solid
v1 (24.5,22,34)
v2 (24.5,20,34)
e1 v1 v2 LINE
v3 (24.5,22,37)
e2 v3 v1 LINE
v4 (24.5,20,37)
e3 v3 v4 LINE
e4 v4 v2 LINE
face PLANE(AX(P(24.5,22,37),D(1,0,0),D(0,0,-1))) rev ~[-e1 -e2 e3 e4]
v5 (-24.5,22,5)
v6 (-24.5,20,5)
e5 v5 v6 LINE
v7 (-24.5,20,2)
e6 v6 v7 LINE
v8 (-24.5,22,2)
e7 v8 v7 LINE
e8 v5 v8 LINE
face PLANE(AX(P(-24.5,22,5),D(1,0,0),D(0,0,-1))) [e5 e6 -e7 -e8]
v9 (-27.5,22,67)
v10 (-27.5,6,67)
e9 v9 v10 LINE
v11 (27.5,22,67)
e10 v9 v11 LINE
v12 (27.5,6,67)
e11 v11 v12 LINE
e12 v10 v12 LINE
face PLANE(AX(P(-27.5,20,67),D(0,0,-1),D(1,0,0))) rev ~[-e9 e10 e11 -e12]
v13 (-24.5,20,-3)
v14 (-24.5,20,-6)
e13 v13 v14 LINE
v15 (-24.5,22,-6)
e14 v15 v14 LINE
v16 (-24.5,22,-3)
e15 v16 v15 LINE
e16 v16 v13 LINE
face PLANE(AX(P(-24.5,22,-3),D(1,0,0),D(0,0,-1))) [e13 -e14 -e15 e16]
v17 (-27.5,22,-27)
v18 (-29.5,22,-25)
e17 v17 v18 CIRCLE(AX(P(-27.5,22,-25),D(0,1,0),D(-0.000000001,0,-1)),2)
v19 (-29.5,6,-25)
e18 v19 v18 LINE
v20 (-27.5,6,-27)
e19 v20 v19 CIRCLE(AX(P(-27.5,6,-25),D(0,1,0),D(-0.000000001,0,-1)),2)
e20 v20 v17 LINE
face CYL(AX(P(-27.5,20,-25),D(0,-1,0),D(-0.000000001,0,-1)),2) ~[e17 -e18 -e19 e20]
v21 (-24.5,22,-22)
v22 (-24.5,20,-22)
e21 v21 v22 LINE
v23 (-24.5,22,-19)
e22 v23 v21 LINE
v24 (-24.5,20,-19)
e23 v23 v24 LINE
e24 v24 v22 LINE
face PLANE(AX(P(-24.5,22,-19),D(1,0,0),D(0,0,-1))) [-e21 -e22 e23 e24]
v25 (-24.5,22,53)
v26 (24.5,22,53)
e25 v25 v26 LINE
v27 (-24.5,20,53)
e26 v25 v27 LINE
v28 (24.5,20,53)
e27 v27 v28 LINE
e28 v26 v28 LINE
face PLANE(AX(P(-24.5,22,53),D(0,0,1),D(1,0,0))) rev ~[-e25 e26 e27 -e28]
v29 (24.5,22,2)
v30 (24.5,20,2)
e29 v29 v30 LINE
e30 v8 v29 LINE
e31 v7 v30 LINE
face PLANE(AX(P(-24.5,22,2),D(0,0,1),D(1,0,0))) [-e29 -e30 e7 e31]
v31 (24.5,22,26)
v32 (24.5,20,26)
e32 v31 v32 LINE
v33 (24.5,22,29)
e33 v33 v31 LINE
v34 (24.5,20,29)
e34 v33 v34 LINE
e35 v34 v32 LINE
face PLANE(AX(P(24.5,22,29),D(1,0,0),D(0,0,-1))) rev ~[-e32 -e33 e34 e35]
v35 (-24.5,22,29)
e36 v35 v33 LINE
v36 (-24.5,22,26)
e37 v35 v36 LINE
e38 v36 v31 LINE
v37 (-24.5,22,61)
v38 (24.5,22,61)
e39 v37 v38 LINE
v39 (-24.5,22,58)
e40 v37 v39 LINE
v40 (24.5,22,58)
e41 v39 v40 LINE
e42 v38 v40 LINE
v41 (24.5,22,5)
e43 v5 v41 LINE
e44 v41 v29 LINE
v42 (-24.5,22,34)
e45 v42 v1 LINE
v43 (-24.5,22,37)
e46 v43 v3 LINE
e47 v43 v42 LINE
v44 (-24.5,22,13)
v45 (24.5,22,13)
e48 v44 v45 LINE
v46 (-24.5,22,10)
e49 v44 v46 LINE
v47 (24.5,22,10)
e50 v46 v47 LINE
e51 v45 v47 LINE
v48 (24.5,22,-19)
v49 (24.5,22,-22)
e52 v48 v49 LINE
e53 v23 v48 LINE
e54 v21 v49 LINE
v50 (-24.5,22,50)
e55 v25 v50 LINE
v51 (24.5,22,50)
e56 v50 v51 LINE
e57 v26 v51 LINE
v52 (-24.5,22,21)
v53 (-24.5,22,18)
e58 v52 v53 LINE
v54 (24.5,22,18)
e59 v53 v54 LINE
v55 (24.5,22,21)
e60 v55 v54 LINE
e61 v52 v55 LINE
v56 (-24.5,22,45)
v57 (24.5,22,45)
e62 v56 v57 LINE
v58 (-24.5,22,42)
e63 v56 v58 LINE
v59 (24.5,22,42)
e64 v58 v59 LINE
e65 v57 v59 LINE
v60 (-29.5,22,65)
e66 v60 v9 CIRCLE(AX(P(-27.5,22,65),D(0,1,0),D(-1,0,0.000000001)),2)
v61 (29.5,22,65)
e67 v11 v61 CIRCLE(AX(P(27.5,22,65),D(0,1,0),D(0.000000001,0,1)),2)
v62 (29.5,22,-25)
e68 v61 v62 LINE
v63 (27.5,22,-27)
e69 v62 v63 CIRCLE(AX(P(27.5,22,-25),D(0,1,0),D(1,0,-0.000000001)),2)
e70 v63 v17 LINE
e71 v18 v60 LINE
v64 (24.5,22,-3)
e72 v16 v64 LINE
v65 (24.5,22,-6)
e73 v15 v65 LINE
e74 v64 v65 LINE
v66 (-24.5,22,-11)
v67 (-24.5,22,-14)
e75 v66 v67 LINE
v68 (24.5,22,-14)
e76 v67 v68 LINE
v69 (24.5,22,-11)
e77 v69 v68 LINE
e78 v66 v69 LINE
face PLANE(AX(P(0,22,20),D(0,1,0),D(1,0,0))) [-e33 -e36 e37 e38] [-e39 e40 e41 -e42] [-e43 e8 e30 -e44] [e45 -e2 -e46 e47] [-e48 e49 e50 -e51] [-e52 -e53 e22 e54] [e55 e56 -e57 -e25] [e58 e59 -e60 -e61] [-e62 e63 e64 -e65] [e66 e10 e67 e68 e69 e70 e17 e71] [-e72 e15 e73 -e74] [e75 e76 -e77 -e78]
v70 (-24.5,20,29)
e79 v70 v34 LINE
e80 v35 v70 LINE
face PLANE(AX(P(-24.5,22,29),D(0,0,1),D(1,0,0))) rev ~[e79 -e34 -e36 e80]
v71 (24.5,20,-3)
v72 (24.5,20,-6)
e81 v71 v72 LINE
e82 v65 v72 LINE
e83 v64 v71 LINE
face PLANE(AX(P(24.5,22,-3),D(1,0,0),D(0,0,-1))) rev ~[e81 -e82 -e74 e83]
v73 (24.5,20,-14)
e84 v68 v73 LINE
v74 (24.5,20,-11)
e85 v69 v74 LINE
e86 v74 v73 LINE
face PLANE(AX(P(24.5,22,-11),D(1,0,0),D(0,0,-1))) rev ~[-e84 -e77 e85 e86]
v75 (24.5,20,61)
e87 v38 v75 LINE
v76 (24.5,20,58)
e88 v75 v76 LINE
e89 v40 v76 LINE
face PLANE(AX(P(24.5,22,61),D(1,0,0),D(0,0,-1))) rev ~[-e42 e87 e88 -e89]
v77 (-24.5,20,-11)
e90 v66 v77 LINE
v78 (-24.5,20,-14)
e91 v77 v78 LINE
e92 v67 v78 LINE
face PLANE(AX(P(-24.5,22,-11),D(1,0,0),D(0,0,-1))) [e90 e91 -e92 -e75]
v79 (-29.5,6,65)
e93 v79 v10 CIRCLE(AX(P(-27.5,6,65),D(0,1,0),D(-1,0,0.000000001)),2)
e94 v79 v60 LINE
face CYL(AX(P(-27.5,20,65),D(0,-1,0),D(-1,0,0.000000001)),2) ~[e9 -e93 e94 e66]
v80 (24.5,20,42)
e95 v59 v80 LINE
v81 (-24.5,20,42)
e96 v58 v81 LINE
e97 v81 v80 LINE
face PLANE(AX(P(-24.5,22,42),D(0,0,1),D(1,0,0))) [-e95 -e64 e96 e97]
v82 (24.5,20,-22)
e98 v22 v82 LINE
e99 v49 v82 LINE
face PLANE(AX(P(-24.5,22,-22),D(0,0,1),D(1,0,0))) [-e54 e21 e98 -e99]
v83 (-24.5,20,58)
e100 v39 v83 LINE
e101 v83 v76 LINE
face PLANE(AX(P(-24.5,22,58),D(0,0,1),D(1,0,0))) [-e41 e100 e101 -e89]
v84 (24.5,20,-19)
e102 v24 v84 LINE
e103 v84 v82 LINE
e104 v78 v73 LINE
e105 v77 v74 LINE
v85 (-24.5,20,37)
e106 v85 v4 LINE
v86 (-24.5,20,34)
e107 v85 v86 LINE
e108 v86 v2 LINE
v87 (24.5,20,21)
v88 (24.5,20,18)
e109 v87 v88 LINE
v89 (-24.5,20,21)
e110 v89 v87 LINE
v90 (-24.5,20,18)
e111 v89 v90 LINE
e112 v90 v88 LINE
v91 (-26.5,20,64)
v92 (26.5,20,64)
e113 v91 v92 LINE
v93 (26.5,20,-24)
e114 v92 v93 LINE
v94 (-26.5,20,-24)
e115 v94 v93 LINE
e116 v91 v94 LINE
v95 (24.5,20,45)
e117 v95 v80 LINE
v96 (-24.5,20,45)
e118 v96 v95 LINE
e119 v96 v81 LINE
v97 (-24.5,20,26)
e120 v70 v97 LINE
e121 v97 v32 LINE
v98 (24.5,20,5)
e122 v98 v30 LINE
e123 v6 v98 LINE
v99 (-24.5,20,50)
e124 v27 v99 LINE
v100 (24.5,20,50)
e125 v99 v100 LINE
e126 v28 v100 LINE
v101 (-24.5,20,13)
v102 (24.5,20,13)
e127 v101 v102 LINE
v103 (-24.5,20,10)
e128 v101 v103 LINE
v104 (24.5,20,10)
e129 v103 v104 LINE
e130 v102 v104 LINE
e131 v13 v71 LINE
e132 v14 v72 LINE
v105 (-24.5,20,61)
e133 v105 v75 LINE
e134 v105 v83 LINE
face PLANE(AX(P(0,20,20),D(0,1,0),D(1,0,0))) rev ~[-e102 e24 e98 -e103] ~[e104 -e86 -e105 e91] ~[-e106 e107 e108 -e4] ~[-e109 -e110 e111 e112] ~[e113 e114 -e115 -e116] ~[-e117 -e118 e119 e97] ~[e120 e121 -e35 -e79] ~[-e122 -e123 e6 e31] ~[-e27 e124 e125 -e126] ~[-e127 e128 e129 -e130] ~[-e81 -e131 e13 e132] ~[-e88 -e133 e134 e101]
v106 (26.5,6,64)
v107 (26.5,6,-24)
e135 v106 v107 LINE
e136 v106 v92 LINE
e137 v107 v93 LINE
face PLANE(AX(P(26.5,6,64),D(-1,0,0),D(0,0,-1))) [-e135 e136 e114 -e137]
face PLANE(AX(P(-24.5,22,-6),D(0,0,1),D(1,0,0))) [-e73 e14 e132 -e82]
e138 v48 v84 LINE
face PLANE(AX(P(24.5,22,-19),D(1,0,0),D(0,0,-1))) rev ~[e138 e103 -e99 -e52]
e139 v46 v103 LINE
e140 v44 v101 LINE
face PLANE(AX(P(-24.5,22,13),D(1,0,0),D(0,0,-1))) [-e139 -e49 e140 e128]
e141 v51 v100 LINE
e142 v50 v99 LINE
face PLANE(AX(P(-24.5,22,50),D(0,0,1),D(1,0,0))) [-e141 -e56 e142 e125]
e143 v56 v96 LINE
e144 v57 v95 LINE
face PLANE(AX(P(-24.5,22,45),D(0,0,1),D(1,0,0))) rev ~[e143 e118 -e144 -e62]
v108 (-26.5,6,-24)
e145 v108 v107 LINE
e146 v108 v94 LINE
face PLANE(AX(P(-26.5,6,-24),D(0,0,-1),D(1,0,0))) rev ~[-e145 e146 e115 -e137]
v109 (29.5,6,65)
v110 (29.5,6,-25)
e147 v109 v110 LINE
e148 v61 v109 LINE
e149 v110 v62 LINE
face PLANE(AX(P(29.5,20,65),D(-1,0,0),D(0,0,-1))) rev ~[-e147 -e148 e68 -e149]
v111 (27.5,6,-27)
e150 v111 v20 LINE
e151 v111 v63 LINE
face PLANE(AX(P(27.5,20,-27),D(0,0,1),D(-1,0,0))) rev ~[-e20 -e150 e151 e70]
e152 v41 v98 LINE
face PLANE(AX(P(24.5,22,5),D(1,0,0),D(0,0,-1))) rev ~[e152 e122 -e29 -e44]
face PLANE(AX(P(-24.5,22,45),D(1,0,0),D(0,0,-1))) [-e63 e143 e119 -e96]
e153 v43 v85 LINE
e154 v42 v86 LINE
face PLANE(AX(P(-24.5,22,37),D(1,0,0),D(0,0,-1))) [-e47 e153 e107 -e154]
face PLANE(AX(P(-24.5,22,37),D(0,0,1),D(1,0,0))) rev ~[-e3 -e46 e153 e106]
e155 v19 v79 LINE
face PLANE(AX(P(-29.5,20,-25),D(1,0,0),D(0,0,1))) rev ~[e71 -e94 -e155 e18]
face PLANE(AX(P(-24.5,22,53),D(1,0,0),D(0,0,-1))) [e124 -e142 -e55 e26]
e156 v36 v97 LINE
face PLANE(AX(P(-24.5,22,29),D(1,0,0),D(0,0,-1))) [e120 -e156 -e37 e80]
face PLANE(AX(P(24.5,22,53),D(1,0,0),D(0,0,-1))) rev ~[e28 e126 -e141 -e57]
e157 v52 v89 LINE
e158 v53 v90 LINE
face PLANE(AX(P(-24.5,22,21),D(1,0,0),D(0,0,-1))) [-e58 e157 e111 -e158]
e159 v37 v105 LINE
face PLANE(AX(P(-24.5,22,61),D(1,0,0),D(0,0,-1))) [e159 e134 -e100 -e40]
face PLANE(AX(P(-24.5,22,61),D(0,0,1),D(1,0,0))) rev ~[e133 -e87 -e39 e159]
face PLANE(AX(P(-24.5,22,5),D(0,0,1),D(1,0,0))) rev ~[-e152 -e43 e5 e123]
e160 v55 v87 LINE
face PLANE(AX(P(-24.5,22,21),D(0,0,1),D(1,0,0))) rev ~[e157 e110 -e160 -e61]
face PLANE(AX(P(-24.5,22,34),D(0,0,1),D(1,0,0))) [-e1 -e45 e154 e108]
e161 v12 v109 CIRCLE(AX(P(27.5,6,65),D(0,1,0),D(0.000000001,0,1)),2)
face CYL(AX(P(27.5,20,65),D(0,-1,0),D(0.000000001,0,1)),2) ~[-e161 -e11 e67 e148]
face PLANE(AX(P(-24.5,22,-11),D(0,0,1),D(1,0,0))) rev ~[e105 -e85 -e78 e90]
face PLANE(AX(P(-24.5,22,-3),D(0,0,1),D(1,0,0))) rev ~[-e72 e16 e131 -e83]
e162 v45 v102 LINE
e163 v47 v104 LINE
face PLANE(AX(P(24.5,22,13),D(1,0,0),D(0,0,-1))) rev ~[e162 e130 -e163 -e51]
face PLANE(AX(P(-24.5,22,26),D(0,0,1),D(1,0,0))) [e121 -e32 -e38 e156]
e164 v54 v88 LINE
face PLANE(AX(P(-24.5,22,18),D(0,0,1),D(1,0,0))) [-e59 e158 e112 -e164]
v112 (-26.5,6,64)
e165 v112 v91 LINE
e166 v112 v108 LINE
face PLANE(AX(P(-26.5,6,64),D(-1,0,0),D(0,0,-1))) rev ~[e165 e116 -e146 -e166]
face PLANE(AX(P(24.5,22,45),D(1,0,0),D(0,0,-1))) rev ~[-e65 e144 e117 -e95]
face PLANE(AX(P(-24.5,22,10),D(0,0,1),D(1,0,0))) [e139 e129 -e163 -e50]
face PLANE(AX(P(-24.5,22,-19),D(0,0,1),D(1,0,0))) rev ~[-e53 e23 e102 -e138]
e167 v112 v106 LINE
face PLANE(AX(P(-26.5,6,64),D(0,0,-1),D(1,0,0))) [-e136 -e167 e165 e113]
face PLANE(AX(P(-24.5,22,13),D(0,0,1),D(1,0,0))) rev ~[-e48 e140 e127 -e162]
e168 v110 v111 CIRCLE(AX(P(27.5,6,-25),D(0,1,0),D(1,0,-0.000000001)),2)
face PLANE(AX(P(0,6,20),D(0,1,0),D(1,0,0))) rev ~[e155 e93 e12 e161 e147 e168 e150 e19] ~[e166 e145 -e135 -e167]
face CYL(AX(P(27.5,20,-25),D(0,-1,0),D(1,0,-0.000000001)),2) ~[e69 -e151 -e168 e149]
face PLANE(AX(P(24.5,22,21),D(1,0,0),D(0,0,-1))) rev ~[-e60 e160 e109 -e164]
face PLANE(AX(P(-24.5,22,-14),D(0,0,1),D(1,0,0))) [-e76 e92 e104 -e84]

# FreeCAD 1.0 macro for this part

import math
import FreeCAD as App
import Part
import Sketcher
Q = App.Units.Quantity


def add_polygon(sketch, points):
    """Adds a closed chain of lines whose ends are joined by coincident constraints."""
    first, n = sketch.GeometryCount, len(points)
    for a, b in zip(points, points[1:] + points[:1]):
        sketch.addGeometry(Part.LineSegment(App.Vector(*a, 0), App.Vector(*b, 0)), False)
    for i in range(n):
        sketch.addConstraint(Sketcher.Constraint("Coincident", first + i, 2, first + (i + 1) % n, 1))

doc = App.newDocument("Part")
params = doc.addObject("Spreadsheet::Sheet", "Params")
for row, (alias, value) in enumerate([
    ("sketch1_radius", "2 mm"),
    ("sketch1_width", "55 mm"),
    ("sketch1_width2", "53 mm"),
    ("sketch1_height", "90 mm"),
    ("sketch1_height2", "88 mm"),
    ("pad1_length", "5 mm"),
    ("pad1_length2", "9 mm"),
    ("sketch2_radius", "2 mm"),
    ("sketch2_width", "55 mm"),
    ("sketch2_height", "90 mm"),
    ("pad2_length", "2 mm"),
    ("sketch3_width", "49 mm"),
    ("sketch3_height", "3 mm"),
    ("linearpattern_pitch", "8 mm"),
], start=1):
    params.set(f"A{row}", alias)
    params.set(f"B{row}", "=" + value)
    params.setAlias(f"B{row}", alias)

body = doc.addObject("PartDesign::Body", "Body")

# Sketch on XZ plane
sketch1 = body.newObject("Sketcher::SketchObject", "Sketch")
sketch1.AttachmentSupport = (doc.getObject("XZ_Plane"), [""])
sketch1.MapMode = "FlatFace"
sketch1.AttachmentOffset = App.Placement(App.Vector(0, 0, -15), App.Rotation())
sketch1.addGeometry(Part.LineSegment(App.Vector(29.5, 65, 0), App.Vector(29.5, -25, 0)), False)  # 0
sketch1.addGeometry(Part.ArcOfCircle(Part.Circle(App.Vector(27.5, -25, 0), App.Vector(0, 0, 1), 2), math.radians(-90), math.radians(0)), False)  # 1
sketch1.addGeometry(Part.LineSegment(App.Vector(27.5, -27, 0), App.Vector(-27.5, -27, 0)), False)  # 2
sketch1.addGeometry(Part.ArcOfCircle(Part.Circle(App.Vector(-27.5, -25, 0), App.Vector(0, 0, 1), 2), math.radians(-180), math.radians(-90)), False)  # 3
sketch1.addGeometry(Part.LineSegment(App.Vector(-29.5, -25, 0), App.Vector(-29.5, 65, 0)), False)  # 4
sketch1.addGeometry(Part.ArcOfCircle(Part.Circle(App.Vector(-27.5, 65, 0), App.Vector(0, 0, 1), 2), math.radians(90), math.radians(180)), False)  # 5
sketch1.addGeometry(Part.LineSegment(App.Vector(-27.5, 67, 0), App.Vector(27.5, 67, 0)), False)  # 6
sketch1.addGeometry(Part.ArcOfCircle(Part.Circle(App.Vector(27.5, 65, 0), App.Vector(0, 0, 1), 2), math.radians(0), math.radians(90)), False)  # 7
add_polygon(sketch1, [(26.5, 64), (-26.5, 64), (-26.5, -24), (26.5, -24)])  # lines 8-11
sketch1.addConstraint([
    Sketcher.Constraint("Tangent", 0, 2, 1, 2),
    Sketcher.Constraint("Tangent", 1, 1, 2, 1),
    Sketcher.Constraint("Tangent", 2, 2, 3, 2),
    Sketcher.Constraint("Tangent", 3, 1, 4, 1),
    Sketcher.Constraint("Tangent", 4, 2, 5, 2),
    Sketcher.Constraint("Tangent", 5, 1, 6, 1),
    Sketcher.Constraint("Tangent", 6, 2, 7, 2),
    Sketcher.Constraint("Tangent", 7, 1, 0, 1),
    Sketcher.Constraint("Vertical", 0),
    Sketcher.Constraint("Horizontal", 2),
    Sketcher.Constraint("Vertical", 4),
    Sketcher.Constraint("Horizontal", 6),
    Sketcher.Constraint("Horizontal", 8),
    Sketcher.Constraint("Vertical", 9),
    Sketcher.Constraint("Horizontal", 10),
    Sketcher.Constraint("Vertical", 11),
    Sketcher.Constraint("Equal", 1, 3),
    Sketcher.Constraint("Equal", 3, 5),
    Sketcher.Constraint("Equal", 5, 7),
    Sketcher.Constraint("Radius", 1, Q("2 mm")),
    Sketcher.Constraint("DistanceX", 2, 2, 2, 1, Q("55 mm")),
    Sketcher.Constraint("DistanceX", 8, 2, 8, 1, Q("53 mm")),
    Sketcher.Constraint("DistanceY", 0, 2, 0, 1, Q("90 mm")),
    Sketcher.Constraint("DistanceY", 9, 2, 9, 1, Q("88 mm")),
    Sketcher.Constraint("DistanceY", 1, 3, -1, 1, Q("25 mm")),
    Sketcher.Constraint("DistanceY", -1, 1, 8, 2, Q("64 mm")),
    Sketcher.Constraint("DistanceX", 5, 3, 8, 2, Q("1 mm")),
    Sketcher.Constraint("DistanceX", -1, 1, 1, 3, Q("27.5 mm")),
])
sketch1.setExpression("Constraints[23]", "Params.sketch1_radius")
sketch1.setExpression("Constraints[24]", "Params.sketch1_width")
sketch1.setExpression("Constraints[25]", "Params.sketch1_width2")
sketch1.setExpression("Constraints[26]", "Params.sketch1_height")
sketch1.setExpression("Constraints[27]", "Params.sketch1_height2")
pad1 = body.newObject("PartDesign::Pad", "Pad")
pad1.Profile = sketch1
pad1.Type = "TwoLengths"
pad1.setExpression("Length", "Params.pad1_length")
pad1.setExpression("Length2", "Params.pad1_length2")
pad1.Reversed = True

# Sketch on XZ plane
sketch2 = body.newObject("Sketcher::SketchObject", "Sketch001")
sketch2.AttachmentSupport = (doc.getObject("XZ_Plane"), [""])
sketch2.MapMode = "FlatFace"
sketch2.AttachmentOffset = App.Placement(App.Vector(0, 0, -20), App.Rotation())
sketch2.addGeometry([
    Part.LineSegment(App.Vector(29.5, 65, 0), App.Vector(29.5, -25, 0)),  # 0
    Part.ArcOfCircle(Part.Circle(App.Vector(27.5, -25, 0), App.Vector(0, 0, 1), 2), math.radians(-90), math.radians(0)),  # 1
    Part.LineSegment(App.Vector(27.5, -27, 0), App.Vector(-27.5, -27, 0)),  # 2
    Part.ArcOfCircle(Part.Circle(App.Vector(-27.5, -25, 0), App.Vector(0, 0, 1), 2), math.radians(-180), math.radians(-90)),  # 3
    Part.LineSegment(App.Vector(-29.5, -25, 0), App.Vector(-29.5, 65, 0)),  # 4
    Part.ArcOfCircle(Part.Circle(App.Vector(-27.5, 65, 0), App.Vector(0, 0, 1), 2), math.radians(90), math.radians(180)),  # 5
    Part.LineSegment(App.Vector(-27.5, 67, 0), App.Vector(27.5, 67, 0)),  # 6
    Part.ArcOfCircle(Part.Circle(App.Vector(27.5, 65, 0), App.Vector(0, 0, 1), 2), math.radians(0), math.radians(90)),  # 7
], False)
sketch2.addConstraint([
    Sketcher.Constraint("Tangent", 0, 2, 1, 2),
    Sketcher.Constraint("Tangent", 1, 1, 2, 1),
    Sketcher.Constraint("Tangent", 2, 2, 3, 2),
    Sketcher.Constraint("Tangent", 3, 1, 4, 1),
    Sketcher.Constraint("Tangent", 4, 2, 5, 2),
    Sketcher.Constraint("Tangent", 5, 1, 6, 1),
    Sketcher.Constraint("Tangent", 6, 2, 7, 2),
    Sketcher.Constraint("Tangent", 7, 1, 0, 1),
    Sketcher.Constraint("Vertical", 0),
    Sketcher.Constraint("Horizontal", 2),
    Sketcher.Constraint("Vertical", 4),
    Sketcher.Constraint("Horizontal", 6),
    Sketcher.Constraint("Equal", 1, 3),
    Sketcher.Constraint("Equal", 3, 5),
    Sketcher.Constraint("Equal", 5, 7),
    Sketcher.Constraint("Radius", 1, Q("2 mm")),
    Sketcher.Constraint("DistanceX", 2, 2, 2, 1, Q("55 mm")),
    Sketcher.Constraint("DistanceY", 0, 2, 0, 1, Q("90 mm")),
    Sketcher.Constraint("DistanceY", 1, 3, -1, 1, Q("25 mm")),
    Sketcher.Constraint("DistanceX", -1, 1, 1, 3, Q("27.5 mm")),
])
sketch2.setExpression("Constraints[15]", "Params.sketch2_radius")
sketch2.setExpression("Constraints[16]", "Params.sketch2_width")
sketch2.setExpression("Constraints[17]", "Params.sketch2_height")
pad2 = body.newObject("PartDesign::Pad", "Pad001")
pad2.Profile = sketch2
pad2.setExpression("Length", "Params.pad2_length")
pad2.Reversed = True

# Sketch on XZ plane
sketch3 = body.newObject("Sketcher::SketchObject", "Sketch002")
sketch3.AttachmentSupport = (doc.getObject("XZ_Plane"), [""])
sketch3.MapMode = "FlatFace"
sketch3.AttachmentOffset = App.Placement(App.Vector(0, 0, -22), App.Rotation())
add_polygon(sketch3, [(-24.5, -22), (-24.5, -19), (24.5, -19), (24.5, -22)])  # lines 0-3
sketch3.addConstraint([
    Sketcher.Constraint("Vertical", 0),
    Sketcher.Constraint("Horizontal", 1),
    Sketcher.Constraint("Vertical", 2),
    Sketcher.Constraint("Horizontal", 3),
    Sketcher.Constraint("DistanceX", 1, 1, 1, 2, Q("49 mm")),
    Sketcher.Constraint("DistanceY", 0, 1, 0, 2, Q("3 mm")),
    Sketcher.Constraint("DistanceY", 0, 2, -1, 1, Q("19 mm")),
    Sketcher.Constraint("DistanceX", 0, 2, -1, 1, Q("24.5 mm")),
])
sketch3.setExpression("Constraints[8]", "Params.sketch3_width")
sketch3.setExpression("Constraints[9]", "Params.sketch3_height")
pocket1 = body.newObject("PartDesign::Pocket", "Pocket")
pocket1.Profile = sketch3
pocket1.Type = "ThroughAll"
pocket1.Reversed = True
doc.recompute()

linearpattern = body.newObject("PartDesign::LinearPattern", "LinearPattern")
linearpattern.Originals = [pocket1]
linearpattern.Direction = (doc.getObject("Z_Axis"), [""])
linearpattern.Mode = "offset"
linearpattern.setExpression("Offset", "Params.linearpattern_pitch")
linearpattern.Occurrences = 11
body.Tip = linearpattern

doc.recompute()
